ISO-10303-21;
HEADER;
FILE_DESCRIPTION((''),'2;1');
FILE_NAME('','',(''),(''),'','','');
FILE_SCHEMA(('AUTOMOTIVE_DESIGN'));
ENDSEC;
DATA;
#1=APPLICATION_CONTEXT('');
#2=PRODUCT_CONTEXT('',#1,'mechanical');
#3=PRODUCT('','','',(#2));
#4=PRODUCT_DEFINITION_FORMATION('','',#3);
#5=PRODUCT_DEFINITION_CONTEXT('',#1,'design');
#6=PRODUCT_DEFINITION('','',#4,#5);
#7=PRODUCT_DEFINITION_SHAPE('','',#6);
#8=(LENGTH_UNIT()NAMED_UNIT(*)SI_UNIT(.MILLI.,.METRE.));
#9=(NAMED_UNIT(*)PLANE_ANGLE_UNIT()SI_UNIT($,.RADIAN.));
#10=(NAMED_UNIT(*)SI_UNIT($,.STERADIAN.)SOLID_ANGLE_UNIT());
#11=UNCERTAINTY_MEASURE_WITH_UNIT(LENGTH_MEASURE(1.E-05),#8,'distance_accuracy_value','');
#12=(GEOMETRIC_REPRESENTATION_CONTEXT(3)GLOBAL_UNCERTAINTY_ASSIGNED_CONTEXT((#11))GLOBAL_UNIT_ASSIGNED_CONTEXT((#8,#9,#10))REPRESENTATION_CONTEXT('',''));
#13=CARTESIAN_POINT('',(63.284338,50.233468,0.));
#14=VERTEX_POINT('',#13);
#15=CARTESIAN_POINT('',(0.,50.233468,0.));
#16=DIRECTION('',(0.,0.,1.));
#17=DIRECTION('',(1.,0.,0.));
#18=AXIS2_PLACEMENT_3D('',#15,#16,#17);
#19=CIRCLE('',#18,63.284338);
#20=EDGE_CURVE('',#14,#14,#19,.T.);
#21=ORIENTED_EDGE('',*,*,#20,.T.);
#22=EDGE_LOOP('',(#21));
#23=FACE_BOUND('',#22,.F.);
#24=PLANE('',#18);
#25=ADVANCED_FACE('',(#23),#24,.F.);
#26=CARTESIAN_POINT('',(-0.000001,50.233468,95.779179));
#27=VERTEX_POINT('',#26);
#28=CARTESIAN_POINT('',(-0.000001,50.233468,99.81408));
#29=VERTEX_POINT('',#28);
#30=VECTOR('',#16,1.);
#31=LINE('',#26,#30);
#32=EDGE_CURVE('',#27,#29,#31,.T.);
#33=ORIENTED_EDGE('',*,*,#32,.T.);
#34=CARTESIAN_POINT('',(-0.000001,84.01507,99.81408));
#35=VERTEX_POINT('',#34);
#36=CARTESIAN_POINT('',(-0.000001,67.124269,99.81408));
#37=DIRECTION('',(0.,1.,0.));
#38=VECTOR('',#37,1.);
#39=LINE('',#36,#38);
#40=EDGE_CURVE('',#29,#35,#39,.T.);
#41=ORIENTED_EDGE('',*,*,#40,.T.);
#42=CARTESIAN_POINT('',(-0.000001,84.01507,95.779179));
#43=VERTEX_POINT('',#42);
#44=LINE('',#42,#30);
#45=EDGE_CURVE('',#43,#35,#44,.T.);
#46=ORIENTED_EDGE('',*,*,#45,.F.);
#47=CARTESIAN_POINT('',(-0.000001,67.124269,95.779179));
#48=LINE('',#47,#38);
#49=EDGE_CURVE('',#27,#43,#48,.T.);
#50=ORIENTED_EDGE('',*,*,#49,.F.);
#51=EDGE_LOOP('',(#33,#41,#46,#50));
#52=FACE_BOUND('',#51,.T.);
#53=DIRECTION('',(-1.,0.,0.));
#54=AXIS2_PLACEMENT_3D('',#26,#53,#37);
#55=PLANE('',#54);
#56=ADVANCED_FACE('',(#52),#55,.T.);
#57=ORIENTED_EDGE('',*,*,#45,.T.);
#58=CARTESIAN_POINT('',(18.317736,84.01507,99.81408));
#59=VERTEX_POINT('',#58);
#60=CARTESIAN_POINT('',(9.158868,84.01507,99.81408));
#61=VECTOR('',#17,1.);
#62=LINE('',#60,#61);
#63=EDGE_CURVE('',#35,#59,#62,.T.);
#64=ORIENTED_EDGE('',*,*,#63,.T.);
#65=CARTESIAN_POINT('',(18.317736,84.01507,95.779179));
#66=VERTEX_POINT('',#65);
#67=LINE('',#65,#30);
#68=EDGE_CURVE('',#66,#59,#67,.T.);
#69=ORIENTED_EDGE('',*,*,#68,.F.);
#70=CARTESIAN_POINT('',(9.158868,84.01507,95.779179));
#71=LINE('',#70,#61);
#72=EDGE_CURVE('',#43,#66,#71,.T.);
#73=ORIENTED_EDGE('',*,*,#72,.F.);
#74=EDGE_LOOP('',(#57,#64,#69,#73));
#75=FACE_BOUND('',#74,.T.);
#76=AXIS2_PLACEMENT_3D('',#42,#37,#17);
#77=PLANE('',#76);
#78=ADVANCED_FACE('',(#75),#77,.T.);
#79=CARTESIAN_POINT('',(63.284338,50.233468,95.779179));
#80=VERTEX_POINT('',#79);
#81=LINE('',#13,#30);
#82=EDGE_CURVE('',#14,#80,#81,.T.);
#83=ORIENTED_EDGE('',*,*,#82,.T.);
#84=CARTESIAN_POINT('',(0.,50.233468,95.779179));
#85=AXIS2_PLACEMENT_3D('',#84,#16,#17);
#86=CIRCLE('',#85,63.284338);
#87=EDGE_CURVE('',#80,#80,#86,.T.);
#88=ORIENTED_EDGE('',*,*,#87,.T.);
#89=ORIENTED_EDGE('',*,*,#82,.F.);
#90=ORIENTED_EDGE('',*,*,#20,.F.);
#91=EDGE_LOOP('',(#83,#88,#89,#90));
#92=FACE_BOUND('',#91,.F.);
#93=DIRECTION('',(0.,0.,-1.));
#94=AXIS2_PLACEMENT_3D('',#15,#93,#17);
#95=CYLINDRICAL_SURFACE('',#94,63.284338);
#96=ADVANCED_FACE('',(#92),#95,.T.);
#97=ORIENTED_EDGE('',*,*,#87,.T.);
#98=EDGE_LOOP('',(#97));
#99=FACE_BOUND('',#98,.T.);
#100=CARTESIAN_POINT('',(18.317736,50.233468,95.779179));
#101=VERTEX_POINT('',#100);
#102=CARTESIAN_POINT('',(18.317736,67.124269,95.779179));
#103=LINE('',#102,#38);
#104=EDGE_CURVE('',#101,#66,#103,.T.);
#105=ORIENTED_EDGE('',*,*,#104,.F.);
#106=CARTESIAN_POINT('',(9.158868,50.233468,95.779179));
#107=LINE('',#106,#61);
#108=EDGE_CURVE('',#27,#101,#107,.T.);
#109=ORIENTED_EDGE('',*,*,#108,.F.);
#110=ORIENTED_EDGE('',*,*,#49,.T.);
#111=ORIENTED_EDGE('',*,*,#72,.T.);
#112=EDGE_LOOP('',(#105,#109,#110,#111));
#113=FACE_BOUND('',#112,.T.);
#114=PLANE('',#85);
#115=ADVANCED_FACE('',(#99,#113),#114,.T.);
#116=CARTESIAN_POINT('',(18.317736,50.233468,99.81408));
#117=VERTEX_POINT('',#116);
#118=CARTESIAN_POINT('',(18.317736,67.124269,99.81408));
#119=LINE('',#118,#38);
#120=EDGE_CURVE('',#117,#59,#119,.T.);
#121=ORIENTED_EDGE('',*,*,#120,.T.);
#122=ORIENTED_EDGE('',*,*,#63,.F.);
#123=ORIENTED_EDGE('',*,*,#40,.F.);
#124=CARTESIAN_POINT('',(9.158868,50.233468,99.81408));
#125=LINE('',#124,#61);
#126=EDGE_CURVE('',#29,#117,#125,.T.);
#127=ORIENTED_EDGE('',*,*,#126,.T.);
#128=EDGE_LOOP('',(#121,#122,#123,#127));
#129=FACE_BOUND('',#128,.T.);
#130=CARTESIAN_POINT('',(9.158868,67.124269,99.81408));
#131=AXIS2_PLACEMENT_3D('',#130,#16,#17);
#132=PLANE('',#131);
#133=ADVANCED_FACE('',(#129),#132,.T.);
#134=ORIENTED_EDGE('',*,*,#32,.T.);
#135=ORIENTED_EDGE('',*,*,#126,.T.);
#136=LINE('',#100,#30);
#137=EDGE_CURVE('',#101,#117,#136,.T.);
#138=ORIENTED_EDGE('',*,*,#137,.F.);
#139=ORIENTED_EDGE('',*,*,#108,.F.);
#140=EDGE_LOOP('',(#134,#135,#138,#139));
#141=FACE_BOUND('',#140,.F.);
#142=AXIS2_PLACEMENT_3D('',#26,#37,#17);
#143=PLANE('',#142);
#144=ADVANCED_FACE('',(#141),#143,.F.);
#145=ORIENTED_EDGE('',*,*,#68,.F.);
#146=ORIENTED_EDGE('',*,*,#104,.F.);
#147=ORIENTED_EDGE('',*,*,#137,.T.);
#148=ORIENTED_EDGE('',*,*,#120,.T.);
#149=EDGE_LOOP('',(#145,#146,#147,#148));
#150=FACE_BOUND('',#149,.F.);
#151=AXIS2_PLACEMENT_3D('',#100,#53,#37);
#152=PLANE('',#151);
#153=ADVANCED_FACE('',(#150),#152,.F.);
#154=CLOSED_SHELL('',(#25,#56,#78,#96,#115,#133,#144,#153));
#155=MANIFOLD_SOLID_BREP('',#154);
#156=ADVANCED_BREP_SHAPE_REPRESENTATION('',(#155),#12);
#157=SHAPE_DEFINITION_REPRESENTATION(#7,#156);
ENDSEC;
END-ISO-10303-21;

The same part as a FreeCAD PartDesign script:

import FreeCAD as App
import Part
import Sketcher
from FreeCAD import Vector
Q = App.Units.Quantity


def add_polygon(sketch, points):
    """Adds a closed chain of lines whose ends are joined by coincident constraints."""
    first, n = sketch.GeometryCount, len(points)
    for a, b in zip(points, points[1:] + points[:1]):
        sketch.addGeometry(Part.LineSegment(App.Vector(*a, 0), App.Vector(*b, 0)), False)
    for i in range(n):
        sketch.addConstraint(Sketcher.Constraint("Coincident", first + i, 2, first + (i + 1) % n, 1))

doc = App.newDocument("Part")
body = doc.addObject("PartDesign::Body", "Body")

# Sketch on XY plane
sketch1 = doc.addObject("Sketcher::SketchObject", "Sketch")
body.addObject(sketch1)
sketch1.AttachmentSupport = (doc.XY_Plane, [""])
sketch1.MapMode = "FlatFace"
sketch1.addGeometry(Part.Circle(Vector(0, 50, 0), Vector(0, 0, 1), 63), False)
sketch1.addConstraint([
    Sketcher.Constraint("PointOnObject", 0, 3, -2),
    Sketcher.Constraint("Diameter", 0, Q("126.568676 mm")),
    Sketcher.Constraint("DistanceY", -1, 1, 0, 3, Q("50.233468 mm")),
])
pad1 = doc.addObject("PartDesign::Pad", "Pad")
body.addObject(pad1)
pad1.Profile = sketch1
pad1.Length = 95.779179

# Sketch on XY plane
sketch2 = doc.addObject("Sketcher::SketchObject", "Sketch001")
body.addObject(sketch2)
sketch2.AttachmentSupport = (doc.XY_Plane, [""])
sketch2.MapMode = "FlatFace"
sketch2.AttachmentOffset = App.Placement(Vector(0, 0, 95.779179), App.Rotation())
add_polygon(sketch2, [(0, 84), (0, 50), (18, 50), (18, 84)])  # lines 0-3
sketch2.addConstraint([
    Sketcher.Constraint("Vertical", 0),
    Sketcher.Constraint("Horizontal", 1),
    Sketcher.Constraint("Vertical", 2),
    Sketcher.Constraint("Horizontal", 3),
    Sketcher.Constraint("PointOnObject", 0, 2, -2),
    Sketcher.Constraint("DistanceX", 1, 1, 1, 2, Q("18.317737 mm")),
    Sketcher.Constraint("DistanceY", 0, 2, 0, 1, Q("33.781603 mm")),
    Sketcher.Constraint("DistanceY", -1, 1, 2, 2, Q("84.01507 mm")),
])
pad2 = doc.addObject("PartDesign::Pad", "Pad001")
body.addObject(pad2)
pad2.Profile = sketch2
pad2.Length = 4.034901

doc.recompute()
